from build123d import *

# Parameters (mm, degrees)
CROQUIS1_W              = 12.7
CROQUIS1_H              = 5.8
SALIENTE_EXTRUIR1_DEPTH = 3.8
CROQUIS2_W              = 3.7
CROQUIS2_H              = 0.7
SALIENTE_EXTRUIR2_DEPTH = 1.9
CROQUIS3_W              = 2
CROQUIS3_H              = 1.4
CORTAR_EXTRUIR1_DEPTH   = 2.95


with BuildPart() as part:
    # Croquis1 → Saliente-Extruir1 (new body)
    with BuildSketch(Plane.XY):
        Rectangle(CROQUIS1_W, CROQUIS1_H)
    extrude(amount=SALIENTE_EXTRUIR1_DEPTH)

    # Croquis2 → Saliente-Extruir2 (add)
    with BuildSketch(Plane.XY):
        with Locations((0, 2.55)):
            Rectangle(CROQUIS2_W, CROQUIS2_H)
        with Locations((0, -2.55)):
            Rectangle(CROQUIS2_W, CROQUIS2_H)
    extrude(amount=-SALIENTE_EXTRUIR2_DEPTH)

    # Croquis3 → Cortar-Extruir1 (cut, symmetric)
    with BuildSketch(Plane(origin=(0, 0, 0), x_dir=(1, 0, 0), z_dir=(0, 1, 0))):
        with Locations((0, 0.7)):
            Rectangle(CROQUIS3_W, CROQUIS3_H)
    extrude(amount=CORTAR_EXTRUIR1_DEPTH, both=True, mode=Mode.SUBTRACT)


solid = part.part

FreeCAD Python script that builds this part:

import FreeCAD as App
import Part
import Sketcher

V = App.Vector
Q = App.Units.Quantity

doc = App.newDocument("Part")
params = doc.addObject("Spreadsheet::Sheet", "Params")
for row, (alias, value) in enumerate([
    ("sketch1_width", "12.7 mm"),
    ("sketch1_height", "5.8 mm"),
    ("pad1_length", "3.8 mm"),
    ("sketch2_width", "3.7 mm"),
    ("sketch2_height", "0.7 mm"),
    ("pad2_length", "1.9 mm"),
    ("sketch3_width", "2 mm"),
    ("sketch3_height", "1.4 mm"),
    ("pocket1_length", "5.9 mm"),
], start=1):
    params.set(f"A{row}", alias)
    params.set(f"B{row}", "=" + value)
    params.setAlias(f"B{row}", alias)

body = doc.addObject("PartDesign::Body", "Body")

sketch1 = doc.addObject("Sketcher::SketchObject", "Sketch")
body.addObject(sketch1)
sketch1.AttachmentSupport = (doc.XY_Plane, [""])
sketch1.MapMode = "FlatFace"
sketch1.addGeometry([
    Part.LineSegment(V(-6, 3, 0), V(-6, -3, 0)),
    Part.LineSegment(V(-6, -3, 0), V(6, -3, 0)),
    Part.LineSegment(V(6, -3, 0), V(6, 3, 0)),
    Part.LineSegment(V(6, 3, 0), V(-6, 3, 0)),
], False)
sketch1.addConstraint([
    Sketcher.Constraint("Coincident", 0, 2, 1, 1),
    Sketcher.Constraint("Coincident", 1, 2, 2, 1),
    Sketcher.Constraint("Coincident", 2, 2, 3, 1),
    Sketcher.Constraint("Coincident", 3, 2, 0, 1),
    Sketcher.Constraint("Vertical", 0),
    Sketcher.Constraint("Horizontal", 1),
    Sketcher.Constraint("Vertical", 2),
    Sketcher.Constraint("Horizontal", 3),
    Sketcher.Constraint("Symmetric", 0, 2, 2, 2, -1, 1),
    Sketcher.Constraint("DistanceX", 1, 1, 1, 2, Q("12.7 mm")),
    Sketcher.Constraint("DistanceY", 0, 2, 0, 1, Q("5.8 mm")),
])
sketch1.setExpression("Constraints[9]", "Params.sketch1_width")
sketch1.setExpression("Constraints[10]", "Params.sketch1_height")
pad1 = doc.addObject("PartDesign::Pad", "Pad")
body.addObject(pad1)
pad1.Profile = sketch1
pad1.setExpression("Length", "Params.pad1_length")

sketch2 = doc.addObject("Sketcher::SketchObject", "Sketch001")
body.addObject(sketch2)
sketch2.AttachmentSupport = (doc.XY_Plane, [""])
sketch2.MapMode = "FlatFace"
sketch2.addGeometry([
    Part.LineSegment(V(-1.9, 2.9, 0), V(-1.9, 2.2, 0)),
    Part.LineSegment(V(-1.9, 2.2, 0), V(1.9, 2.2, 0)),
    Part.LineSegment(V(1.9, 2.2, 0), V(1.9, 2.9, 0)),
    Part.LineSegment(V(1.9, 2.9, 0), V(-1.9, 2.9, 0)),
    Part.LineSegment(V(-1.9, -2.2, 0), V(-1.9, -2.9, 0)),
    Part.LineSegment(V(-1.9, -2.9, 0), V(1.9, -2.9, 0)),
    Part.LineSegment(V(1.9, -2.9, 0), V(1.9, -2.2, 0)),
    Part.LineSegment(V(1.9, -2.2, 0), V(-1.9, -2.2, 0)),
], False)
sketch2.addConstraint([
    Sketcher.Constraint("Coincident", 0, 2, 1, 1),
    Sketcher.Constraint("Coincident", 1, 2, 2, 1),
    Sketcher.Constraint("Coincident", 2, 2, 3, 1),
    Sketcher.Constraint("Coincident", 3, 2, 0, 1),
    Sketcher.Constraint("Coincident", 4, 2, 5, 1),
    Sketcher.Constraint("Coincident", 5, 2, 6, 1),
    Sketcher.Constraint("Coincident", 6, 2, 7, 1),
    Sketcher.Constraint("Coincident", 7, 2, 4, 1),
    Sketcher.Constraint("Vertical", 0),
    Sketcher.Constraint("Horizontal", 1),
    Sketcher.Constraint("Vertical", 2),
    Sketcher.Constraint("Horizontal", 3),
    Sketcher.Constraint("Vertical", 4),
    Sketcher.Constraint("Horizontal", 5),
    Sketcher.Constraint("Vertical", 6),
    Sketcher.Constraint("Horizontal", 7),
    Sketcher.Constraint("Symmetric", 2, 2, 4, 2, -1, 1),
    Sketcher.Constraint("Symmetric", 0, 2, 6, 2, -1, 1),
    Sketcher.Constraint("Vertical", 3, 2, 4, 2),
    Sketcher.Constraint("DistanceX", 1, 1, 1, 2, Q("3.7 mm")),
    Sketcher.Constraint("DistanceY", 0, 2, 0, 1, Q("0.7 mm")),
    Sketcher.Constraint("DistanceY", -1, 1, 0, 2, Q("2.2 mm")),
])
sketch2.setExpression("Constraints[19]", "Params.sketch2_width")
sketch2.setExpression("Constraints[20]", "Params.sketch2_height")
pad2 = doc.addObject("PartDesign::Pad", "Pad001")
body.addObject(pad2)
pad2.Profile = sketch2
pad2.setExpression("Length", "Params.pad2_length")
pad2.Reversed = True

sketch3 = doc.addObject("Sketcher::SketchObject", "Sketch002")
body.addObject(sketch3)
sketch3.AttachmentSupport = (doc.XZ_Plane, [""])
sketch3.MapMode = "FlatFace"
sketch3.addGeometry([
    Part.LineSegment(V(-1, -1.4, 0), V(-1, 0, 0)),
    Part.LineSegment(V(-1, 0, 0), V(1, 0, 0)),
    Part.LineSegment(V(1, 0, 0), V(1, -1.4, 0)),
    Part.LineSegment(V(1, -1.4, 0), V(-1, -1.4, 0)),
], False)
sketch3.addConstraint([
    Sketcher.Constraint("Coincident", 0, 2, 1, 1),
    Sketcher.Constraint("Coincident", 1, 2, 2, 1),
    Sketcher.Constraint("Coincident", 2, 2, 3, 1),
    Sketcher.Constraint("Coincident", 3, 2, 0, 1),
    Sketcher.Constraint("Vertical", 0),
    Sketcher.Constraint("Horizontal", 1),
    Sketcher.Constraint("Vertical", 2),
    Sketcher.Constraint("Horizontal", 3),
    Sketcher.Constraint("Symmetric", 0, 2, 1, 2, -1, 1),
    Sketcher.Constraint("DistanceX", 1, 1, 1, 2, Q("2 mm")),
    Sketcher.Constraint("DistanceY", 0, 1, 0, 2, Q("1.4 mm")),
])
sketch3.setExpression("Constraints[9]", "Params.sketch3_width")
sketch3.setExpression("Constraints[10]", "Params.sketch3_height")
pocket1 = doc.addObject("PartDesign::Pocket", "Pocket")
body.addObject(pocket1)
pocket1.Profile = sketch3
pocket1.setExpression("Length", "Params.pocket1_length")
pocket1.Midplane = True

doc.recompute()
